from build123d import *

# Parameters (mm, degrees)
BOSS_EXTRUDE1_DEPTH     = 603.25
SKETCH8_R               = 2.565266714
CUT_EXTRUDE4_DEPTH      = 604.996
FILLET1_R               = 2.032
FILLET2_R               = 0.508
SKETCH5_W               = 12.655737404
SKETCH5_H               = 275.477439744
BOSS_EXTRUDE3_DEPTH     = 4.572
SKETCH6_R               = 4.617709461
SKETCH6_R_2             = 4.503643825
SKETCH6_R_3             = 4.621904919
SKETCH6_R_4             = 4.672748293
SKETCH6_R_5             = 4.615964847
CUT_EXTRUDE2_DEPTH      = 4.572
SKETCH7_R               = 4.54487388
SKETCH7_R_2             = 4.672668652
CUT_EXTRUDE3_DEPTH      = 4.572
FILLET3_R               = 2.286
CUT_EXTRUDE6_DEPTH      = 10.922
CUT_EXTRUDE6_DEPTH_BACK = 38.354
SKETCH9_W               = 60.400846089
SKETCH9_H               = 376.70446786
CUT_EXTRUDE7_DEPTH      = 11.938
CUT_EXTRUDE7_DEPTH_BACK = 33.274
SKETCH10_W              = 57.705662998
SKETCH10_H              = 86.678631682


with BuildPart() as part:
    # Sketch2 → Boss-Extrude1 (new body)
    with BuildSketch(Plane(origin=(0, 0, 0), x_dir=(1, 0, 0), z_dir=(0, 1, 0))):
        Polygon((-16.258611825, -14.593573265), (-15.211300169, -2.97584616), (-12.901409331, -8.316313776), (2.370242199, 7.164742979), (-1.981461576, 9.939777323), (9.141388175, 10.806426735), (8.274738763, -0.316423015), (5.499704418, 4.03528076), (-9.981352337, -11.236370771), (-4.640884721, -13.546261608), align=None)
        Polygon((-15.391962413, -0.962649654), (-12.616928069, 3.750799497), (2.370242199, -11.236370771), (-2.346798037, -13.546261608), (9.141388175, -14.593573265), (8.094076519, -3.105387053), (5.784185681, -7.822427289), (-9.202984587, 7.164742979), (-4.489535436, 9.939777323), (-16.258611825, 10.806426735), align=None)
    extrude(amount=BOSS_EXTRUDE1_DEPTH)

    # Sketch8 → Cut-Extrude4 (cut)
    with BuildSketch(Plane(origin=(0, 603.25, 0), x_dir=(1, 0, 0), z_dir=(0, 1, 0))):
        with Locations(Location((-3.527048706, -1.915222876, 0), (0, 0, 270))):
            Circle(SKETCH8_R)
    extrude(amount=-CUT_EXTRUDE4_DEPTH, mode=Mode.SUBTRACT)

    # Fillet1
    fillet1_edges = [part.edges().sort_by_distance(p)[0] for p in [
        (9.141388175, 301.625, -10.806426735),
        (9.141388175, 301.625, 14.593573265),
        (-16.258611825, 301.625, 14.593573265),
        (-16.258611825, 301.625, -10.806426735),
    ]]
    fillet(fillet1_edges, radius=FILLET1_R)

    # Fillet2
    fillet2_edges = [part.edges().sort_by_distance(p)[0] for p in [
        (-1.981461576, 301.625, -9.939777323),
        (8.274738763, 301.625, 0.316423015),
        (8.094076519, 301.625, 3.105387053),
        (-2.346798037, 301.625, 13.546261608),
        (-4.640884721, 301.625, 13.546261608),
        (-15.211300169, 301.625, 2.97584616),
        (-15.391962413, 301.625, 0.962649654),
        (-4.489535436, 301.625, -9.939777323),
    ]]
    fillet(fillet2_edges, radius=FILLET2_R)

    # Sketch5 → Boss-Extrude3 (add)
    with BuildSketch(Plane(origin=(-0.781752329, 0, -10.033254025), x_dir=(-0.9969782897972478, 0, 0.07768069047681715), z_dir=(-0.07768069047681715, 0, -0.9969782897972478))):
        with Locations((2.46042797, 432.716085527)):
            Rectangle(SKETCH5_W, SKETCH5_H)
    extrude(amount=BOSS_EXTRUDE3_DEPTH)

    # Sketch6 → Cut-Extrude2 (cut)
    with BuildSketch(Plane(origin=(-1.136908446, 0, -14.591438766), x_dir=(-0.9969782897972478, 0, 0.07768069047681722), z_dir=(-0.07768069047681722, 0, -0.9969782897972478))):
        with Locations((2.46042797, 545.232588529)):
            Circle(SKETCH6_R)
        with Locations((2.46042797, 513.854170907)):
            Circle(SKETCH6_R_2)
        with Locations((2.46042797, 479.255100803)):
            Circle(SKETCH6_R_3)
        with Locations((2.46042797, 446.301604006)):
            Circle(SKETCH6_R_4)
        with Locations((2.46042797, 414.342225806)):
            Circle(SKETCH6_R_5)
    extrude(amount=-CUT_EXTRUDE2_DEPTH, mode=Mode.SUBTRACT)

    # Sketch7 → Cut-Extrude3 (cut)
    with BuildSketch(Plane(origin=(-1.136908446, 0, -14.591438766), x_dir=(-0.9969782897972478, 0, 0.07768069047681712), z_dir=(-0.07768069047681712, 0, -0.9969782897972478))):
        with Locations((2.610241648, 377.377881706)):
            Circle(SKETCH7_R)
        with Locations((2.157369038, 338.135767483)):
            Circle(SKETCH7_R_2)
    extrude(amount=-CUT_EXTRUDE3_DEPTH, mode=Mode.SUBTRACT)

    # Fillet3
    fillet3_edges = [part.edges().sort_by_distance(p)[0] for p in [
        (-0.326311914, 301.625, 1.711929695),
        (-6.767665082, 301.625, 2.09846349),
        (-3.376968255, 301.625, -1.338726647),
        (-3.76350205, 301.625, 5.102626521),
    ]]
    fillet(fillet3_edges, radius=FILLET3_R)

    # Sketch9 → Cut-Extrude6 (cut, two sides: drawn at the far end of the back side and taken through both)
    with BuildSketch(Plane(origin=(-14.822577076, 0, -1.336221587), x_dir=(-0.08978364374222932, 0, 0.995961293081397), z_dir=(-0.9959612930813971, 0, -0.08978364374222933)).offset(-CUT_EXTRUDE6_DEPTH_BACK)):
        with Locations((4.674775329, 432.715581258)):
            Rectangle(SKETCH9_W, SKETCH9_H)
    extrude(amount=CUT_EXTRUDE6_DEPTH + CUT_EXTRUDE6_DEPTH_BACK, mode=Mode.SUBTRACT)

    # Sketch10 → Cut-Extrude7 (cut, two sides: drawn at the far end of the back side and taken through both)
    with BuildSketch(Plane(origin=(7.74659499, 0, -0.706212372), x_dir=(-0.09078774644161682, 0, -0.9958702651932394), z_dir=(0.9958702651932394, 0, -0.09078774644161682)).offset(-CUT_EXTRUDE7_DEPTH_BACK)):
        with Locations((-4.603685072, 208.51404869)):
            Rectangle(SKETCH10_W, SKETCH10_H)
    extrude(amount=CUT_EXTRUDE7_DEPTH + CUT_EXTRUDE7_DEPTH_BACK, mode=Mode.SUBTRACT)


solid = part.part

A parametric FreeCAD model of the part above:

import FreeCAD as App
import Part
import Sketcher
from FreeCAD import Vector
Q = App.Units.Quantity


def edges_at(feature, points):
    """Names of the edges that pass closest to the given points."""
    edges = feature.Shape.Edges
    near = lambda p: min(range(len(edges)), key=lambda i: edges[i].distToShape(Part.Vertex(*p))[0])
    return sorted({f"Edge{near(p) + 1}" for p in points})

doc = App.newDocument("Part")
params = doc.addObject("Spreadsheet::Sheet", "Params")
for row, (alias, value) in enumerate([
    ("pad1_length", "23.75 in"),
    ("pocket1_length", "604.996 mm"),
    ("fillet_radius", "0.08 in"),
    ("fillet2_radius", "0.02 in"),
    ("pad2_length", "0.18 in"),
    ("pocket2_length", "0.18 in"),
    ("pocket3_length", "0.18 in"),
    ("fillet3_radius", "0.09 in"),
], start=1):
    params.set(f"A{row}", alias)
    params.set(f"B{row}", "=" + value)
    params.setAlias(f"B{row}", alias)

body = doc.addObject("PartDesign::Body", "Body")

# Sketch on XZ plane
sketch1 = body.newObject("Sketcher::SketchObject", "Sketch")
sketch1.AttachmentSupport = (doc.getObject("XZ_Plane"), [""])
sketch1.MapMode = "FlatFace"
sketch1.addGeometry([
    Part.LineSegment(Vector(-16.258612, 14.593573, 0), Vector(-4.640885, 13.546262, 0)),  # 0
    Part.LineSegment(Vector(-4.640885, 13.546262, 0), Vector(-9.981352, 11.236371, 0)),  # 1
    Part.LineSegment(Vector(-9.981352, 11.236371, 0), Vector(-3.763502, 5.102627, 0)),  # 2
    Part.LineSegment(Vector(-3.763502, 5.102627, 0), Vector(2.370242, 11.236371, 0)),  # 3
    Part.LineSegment(Vector(2.370242, 11.236371, 0), Vector(-2.346798, 13.546262, 0)),  # 4
    Part.LineSegment(Vector(-2.346798, 13.546262, 0), Vector(9.141388, 14.593573, 0)),  # 5
    Part.LineSegment(Vector(9.141388, 14.593573, 0), Vector(8.094077, 3.105387, 0)),  # 6
    Part.LineSegment(Vector(8.094077, 3.105387, 0), Vector(5.784186, 7.822427, 0)),  # 7
    Part.LineSegment(Vector(5.784186, 7.822427, 0), Vector(-0.326312, 1.71193, 0)),  # 8
    Part.LineSegment(Vector(-0.326312, 1.71193, 0), Vector(5.499704, -4.035281, 0)),  # 9
    Part.LineSegment(Vector(5.499704, -4.035281, 0), Vector(8.274739, 0.316423, 0)),  # 10
    Part.LineSegment(Vector(8.274739, 0.316423, 0), Vector(9.141388, -10.806427, 0)),  # 11
    Part.LineSegment(Vector(9.141388, -10.806427, 0), Vector(-1.981462, -9.939777, 0)),  # 12
    Part.LineSegment(Vector(-1.981462, -9.939777, 0), Vector(2.370242, -7.164743, 0)),  # 13
    Part.LineSegment(Vector(2.370242, -7.164743, 0), Vector(-3.376968, -1.338727, 0)),  # 14
    Part.LineSegment(Vector(-3.376968, -1.338727, 0), Vector(-9.202985, -7.164743, 0)),  # 15
    Part.LineSegment(Vector(-9.202985, -7.164743, 0), Vector(-4.489535, -9.939777, 0)),  # 16
    Part.LineSegment(Vector(-4.489535, -9.939777, 0), Vector(-16.258612, -10.806427, 0)),  # 17
    Part.LineSegment(Vector(-16.258612, -10.806427, 0), Vector(-15.391962, 0.96265, 0)),  # 18
    Part.LineSegment(Vector(-15.391962, 0.96265, 0), Vector(-12.616928, -3.750799, 0)),  # 19
    Part.LineSegment(Vector(-12.616928, -3.750799, 0), Vector(-6.767665, 2.098463, 0)),  # 20
    Part.LineSegment(Vector(-6.767665, 2.098463, 0), Vector(-12.901409, 8.316314, 0)),  # 21
    Part.LineSegment(Vector(-12.901409, 8.316314, 0), Vector(-15.2113, 2.975846, 0)),  # 22
    Part.LineSegment(Vector(-15.2113, 2.975846, 0), Vector(-16.258612, 14.593573, 0)),  # 23
], False)
sketch1.addConstraint([
    Sketcher.Constraint("Coincident", 0, 2, 1, 1),
    Sketcher.Constraint("Coincident", 1, 2, 2, 1),
    Sketcher.Constraint("Coincident", 2, 2, 3, 1),
    Sketcher.Constraint("Coincident", 3, 2, 4, 1),
    Sketcher.Constraint("Coincident", 4, 2, 5, 1),
    Sketcher.Constraint("Coincident", 5, 2, 6, 1),
    Sketcher.Constraint("Coincident", 6, 2, 7, 1),
    Sketcher.Constraint("Coincident", 7, 2, 8, 1),
    Sketcher.Constraint("Coincident", 8, 2, 9, 1),
    Sketcher.Constraint("Coincident", 9, 2, 10, 1),
    Sketcher.Constraint("Coincident", 10, 2, 11, 1),
    Sketcher.Constraint("Coincident", 11, 2, 12, 1),
    Sketcher.Constraint("Coincident", 12, 2, 13, 1),
    Sketcher.Constraint("Coincident", 13, 2, 14, 1),
    Sketcher.Constraint("Coincident", 14, 2, 15, 1),
    Sketcher.Constraint("Coincident", 15, 2, 16, 1),
    Sketcher.Constraint("Coincident", 16, 2, 17, 1),
    Sketcher.Constraint("Coincident", 17, 2, 18, 1),
    Sketcher.Constraint("Coincident", 18, 2, 19, 1),
    Sketcher.Constraint("Coincident", 19, 2, 20, 1),
    Sketcher.Constraint("Coincident", 20, 2, 21, 1),
    Sketcher.Constraint("Coincident", 21, 2, 22, 1),
    Sketcher.Constraint("Coincident", 22, 2, 23, 1),
    Sketcher.Constraint("Coincident", 23, 2, 0, 1),
    Sketcher.Constraint("DistanceX", 9, 2, 7, 2, Q("0.0112 in")),
    Sketcher.Constraint("Distance", 2, Q("8.734099 mm")),
    Sketcher.Constraint("Distance", 21, Q("8.734099 mm")),
    Sketcher.Constraint("DistanceX", 4, 2, -1, 1, Q("2.346798 mm")),
    Sketcher.Constraint("DistanceY", 19, 2, -1, 1, Q("3.750799 mm")),
    Sketcher.Constraint("DistanceX", 22, 2, -1, 1, Q("15.2113 mm")),
    Sketcher.Constraint("DistanceY", 2, 2, 7, 2, Q("2.719801 mm")),
    Sketcher.Constraint("DistanceX", 8, 2, 11, 2, Q("9.4677 mm")),
    Sketcher.Constraint("DistanceX", 12, 2, 10, 2, Q("10.2562 mm")),
    Sketcher.Constraint("DistanceY", 12, 2, 10, 2, Q("10.2562 mm")),
    Sketcher.Constraint("DistanceY", 17, 2, 14, 2, Q("9.4677 mm")),
    Sketcher.Constraint("Distance", 8, Q("8.641549 mm")),
    Sketcher.Constraint("Distance", 11, Q("11.156562 mm")),
    Sketcher.Constraint("Distance", 12, Q("11.156562 mm")),
    Sketcher.Constraint("Distance", 15, Q("8.239231 mm")),
    Sketcher.Constraint("Distance", 16, Q("5.469682 mm")),
    Sketcher.Constraint("Distance", 19, Q("5.469682 mm")),
    Sketcher.Constraint("DistanceY", -1, 1, 0, 2, Q("13.546262 mm")),
    Sketcher.Constraint("DistanceY", -1, 1, 1, 2, Q("11.236371 mm")),
    Sketcher.Constraint("DistanceY", -1, 1, 3, 2, Q("11.236371 mm")),
    Sketcher.Constraint("DistanceY", -1, 1, 4, 2, Q("13.546262 mm")),
    Sketcher.Constraint("DistanceX", -1, 1, 5, 2, Q("9.141388 mm")),
    Sketcher.Constraint("DistanceX", 8, 2, -1, 1, Q("0.326312 mm")),
    Sketcher.Constraint("DistanceY", -1, 1, 8, 2, Q("1.71193 mm")),
    Sketcher.Constraint("DistanceY", 9, 2, -1, 1, Q("4.035281 mm")),
    Sketcher.Constraint("DistanceX", 14, 2, -1, 1, Q("3.376968 mm")),
    Sketcher.Constraint("DistanceX", 17, 2, -1, 1, Q("16.258612 mm")),
    Sketcher.Constraint("DistanceY", -1, 1, 18, 2, Q("0.96265 mm")),
    Sketcher.Constraint("DistanceX", 19, 2, -1, 1, Q("12.616928 mm")),
    Sketcher.Constraint("DistanceX", 21, 2, -1, 1, Q("12.901409 mm")),
    Sketcher.Constraint("DistanceX", 23, 2, -1, 1, Q("16.258612 mm")),
    Sketcher.Constraint("DistanceX", 1, 2, 2, 2, Q("6.21785 mm")),
    Sketcher.Constraint("DistanceX", 4, 2, 3, 2, Q("4.71704 mm")),
    Sketcher.Constraint("DistanceY", 4, 2, 5, 2, Q("1.047312 mm")),
    Sketcher.Constraint("DistanceX", 2, 2, 5, 2, Q("12.90489 mm")),
    Sketcher.Constraint("DistanceX", 6, 2, 5, 2, Q("1.047312 mm")),
    Sketcher.Constraint("DistanceY", 6, 2, 2, 2, Q("1.997239 mm")),
    Sketcher.Constraint("DistanceX", 0, 2, 6, 2, Q("12.734961 mm")),
    Sketcher.Constraint("DistanceX", 14, 2, 13, 2, Q("5.74721 mm")),
    Sketcher.Constraint("DistanceY", 12, 2, 14, 2, Q("8.601051 mm")),
    Sketcher.Constraint("DistanceY", 15, 2, 2, 2, Q("12.26737 mm")),
    Sketcher.Constraint("DistanceX", 15, 2, 16, 2, Q("4.713449 mm")),
    Sketcher.Constraint("DistanceY", 16, 2, 14, 2, Q("8.601051 mm")),
    Sketcher.Constraint("DistanceY", 14, 2, 20, 2, Q("3.43719 mm")),
    Sketcher.Constraint("DistanceY", 20, 2, 21, 2, Q("6.21785 mm")),
    Sketcher.Constraint("DistanceY", 21, 2, 23, 2, Q("6.277259 mm")),
    Sketcher.Constraint("Distance", 13, Q("5.161215 mm")),
    Sketcher.Constraint("Distance", 22, Q("5.818607 mm")),
])
pad1 = body.newObject("PartDesign::Pad", "Pad")
pad1.Profile = sketch1
pad1.setExpression("Length", "Params.pad1_length")
pad1.Reversed = True

# Sketch on XZ plane
sketch2 = body.newObject("Sketcher::SketchObject", "Sketch001")
sketch2.AttachmentSupport = (doc.getObject("XZ_Plane"), [""])
sketch2.MapMode = "FlatFace"
sketch2.AttachmentOffset = App.Placement(Vector(0, 0, -23.75 * 25.4), App.Rotation())
sketch2.addGeometry(Part.Circle(Vector(-3.5, 1.9, 0), Vector(0, 0, 1), 2.6), False)
sketch2.addConstraint([
    Sketcher.Constraint("Diameter", 0, Q("5.130533 mm")),
    Sketcher.Constraint("DistanceX", 0, 3, -1, 1, Q("3.527049 mm")),
    Sketcher.Constraint("DistanceY", -1, 1, 0, 3, Q("1.915223 mm")),
])
pocket1 = body.newObject("PartDesign::Pocket", "Pocket")
pocket1.Profile = sketch2
pocket1.setExpression("Length", "Params.pocket1_length")
pocket1.Reversed = True
doc.recompute()

fillet = body.newObject("PartDesign::Fillet", "Fillet")
fillet.Base = (pocket1, edges_at(pocket1, [
    (9.141, 301.625, -10.806),
    (9.141, 301.625, 14.594),
    (-16.259, 301.625, 14.594),
    (-16.259, 301.625, -10.806),
]))
fillet.setExpression("Radius", "Params.fillet_radius")
doc.recompute()

fillet2 = body.newObject("PartDesign::Fillet", "Fillet001")
fillet2.Base = (fillet, edges_at(fillet, [
    (-1.981, 301.625, -9.94),
    (8.275, 301.625, 0.316),
    (8.094, 301.625, 3.105),
    (-2.347, 301.625, 13.546),
    (-4.641, 301.625, 13.546),
    (-15.211, 301.625, 2.976),
    (-15.392, 301.625, 0.963),
    (-4.49, 301.625, -9.94),
]))
fillet2.setExpression("Radius", "Params.fillet2_radius")

# Sketch on an angled plane
sketch3 = body.newObject("Sketcher::SketchObject", "Sketch002")
sketch3.Placement = App.Placement(Vector(-0.781752, 0, -10.033254), App.Rotation(Vector(-0.99697829, 0, 0.07768069), Vector(0, 1, 0), Vector(-0.07768069, 0, -0.99697829), "ZXY"))
sketch3.addGeometry([
    Part.LineSegment(Vector(-4, 570, 0), Vector(-4, 295, 0)),
    Part.LineSegment(Vector(-4, 295, 0), Vector(9, 295, 0)),
    Part.LineSegment(Vector(9, 295, 0), Vector(9, 570, 0)),
    Part.LineSegment(Vector(9, 570, 0), Vector(-4, 570, 0)),
], False)
sketch3.addConstraint([
    Sketcher.Constraint("Coincident", 0, 2, 1, 1),
    Sketcher.Constraint("Coincident", 1, 2, 2, 1),
    Sketcher.Constraint("Coincident", 2, 2, 3, 1),
    Sketcher.Constraint("Coincident", 3, 2, 0, 1),
    Sketcher.Constraint("Vertical", 0),
    Sketcher.Constraint("Horizontal", 1),
    Sketcher.Constraint("Vertical", 2),
    Sketcher.Constraint("Horizontal", 3),
    Sketcher.Constraint("DistanceY", 0, 2, 0, 1, Q("275.47744 mm")),
    Sketcher.Constraint("DistanceX", 1, 1, 1, 2, Q("12.655737 mm")),
    Sketcher.Constraint("DistanceX", 0, 2, -1, 1, Q("3.867441 mm")),
    Sketcher.Constraint("DistanceY", -1, 1, 0, 2, Q("294.977366 mm")),
])
pad2 = body.newObject("PartDesign::Pad", "Pad001")
pad2.Profile = sketch3
pad2.setExpression("Length", "Params.pad2_length")

# Sketch on an angled plane
sketch4 = body.newObject("Sketcher::SketchObject", "Sketch003")
sketch4.Placement = App.Placement(Vector(-1.136908, 0, -14.591439), App.Rotation(Vector(-0.99697829, 0, 0.07768069), Vector(0, 1, 0), Vector(-0.07768069, 0, -0.99697829), "ZXY"))
sketch4.addGeometry([
    Part.Circle(Vector(2.5, 545.2, 0), Vector(0, 0, 1), 4.6),  # 0
    Part.Circle(Vector(2.5, 513.9, 0), Vector(0, 0, 1), 4.5),  # 1
    Part.Circle(Vector(2.5, 479.3, 0), Vector(0, 0, 1), 4.6),  # 2
    Part.Circle(Vector(2.5, 446.3, 0), Vector(0, 0, 1), 4.7),  # 3
    Part.Circle(Vector(2.5, 414.3, 0), Vector(0, 0, 1), 4.6),  # 4
], False)
sketch4.addConstraint([
    Sketcher.Constraint("Vertical", 0, 3, 1, 3),
    Sketcher.Constraint("Vertical", 1, 3, 2, 3),
    Sketcher.Constraint("Vertical", 2, 3, 3, 3),
    Sketcher.Constraint("Vertical", 3, 3, 4, 3),
    Sketcher.Constraint("Diameter", 0, Q("9.235419 mm")),
    Sketcher.Constraint("Diameter", 2, Q("9.24381 mm")),
    Sketcher.Constraint("Diameter", 4, Q("9.23193 mm")),
    Sketcher.Constraint("Diameter", 1, Q("9.007288 mm")),
    Sketcher.Constraint("Diameter", 3, Q("9.345497 mm")),
    Sketcher.Constraint("DistanceY", -1, 1, 2, 3, Q("479.255101 mm")),
    Sketcher.Constraint("DistanceY", -1, 1, 0, 3, Q("545.232589 mm")),
    Sketcher.Constraint("DistanceY", -1, 1, 1, 3, Q("513.854171 mm")),
    Sketcher.Constraint("DistanceY", 4, 3, 3, 3, Q("31.959378 mm")),
    Sketcher.Constraint("DistanceX", -1, 1, 0, 3, Q("2.460428 mm")),
    Sketcher.Constraint("DistanceY", -1, 1, 3, 3, Q("446.301604 mm")),
])
pocket2 = body.newObject("PartDesign::Pocket", "Pocket001")
pocket2.Profile = sketch4
pocket2.setExpression("Length", "Params.pocket2_length")

# Sketch on an angled plane
sketch5 = body.newObject("Sketcher::SketchObject", "Sketch004")
sketch5.Placement = App.Placement(Vector(-1.136908, 0, -14.591439), App.Rotation(Vector(-0.99697829, 0, 0.07768069), Vector(0, 1, 0), Vector(-0.07768069, 0, -0.99697829), "ZXY"))
sketch5.addGeometry([
    Part.Circle(Vector(2.6, 377.4, 0), Vector(0, 0, 1), 4.5),
    Part.Circle(Vector(2.2, 338.1, 0), Vector(0, 0, 1), 4.7),
], False)
sketch5.addConstraint([
    Sketcher.Constraint("Diameter", 0, Q("9.089748 mm")),
    Sketcher.Constraint("Diameter", 1, Q("9.345337 mm")),
    Sketcher.Constraint("DistanceX", -1, 1, 0, 3, Q("2.610242 mm")),
    Sketcher.Constraint("DistanceY", -1, 1, 0, 3, Q("377.377882 mm")),
    Sketcher.Constraint("DistanceX", -1, 1, 1, 3, Q("2.157369 mm")),
    Sketcher.Constraint("DistanceY", -1, 1, 1, 3, Q("338.135768 mm")),
])
pocket3 = body.newObject("PartDesign::Pocket", "Pocket002")
pocket3.Profile = sketch5
pocket3.setExpression("Length", "Params.pocket3_length")
doc.recompute()

fillet3 = body.newObject("PartDesign::Fillet", "Fillet002")
fillet3.Base = (pocket3, edges_at(pocket3, [
    (-0.326, 301.625, 1.712),
    (-6.768, 301.625, 2.098),
    (-3.377, 301.625, -1.339),
    (-3.764, 301.625, 5.103),
]))
fillet3.setExpression("Radius", "Params.fillet3_radius")

# Sketch on an angled plane
sketch6 = body.newObject("Sketcher::SketchObject", "Sketch005")
sketch6.Placement = App.Placement(Vector(-14.822577, 0, -1.336222), App.Rotation(Vector(-0.089783644, 0, 0.995961293), Vector(0, 1, 0), Vector(-0.995961293, 0, -0.089783644), "ZXY"))
sketch6.addGeometry([
    Part.LineSegment(Vector(-26, 621, 0), Vector(-26, 244, 0)),
    Part.LineSegment(Vector(-26, 244, 0), Vector(35, 244, 0)),
    Part.LineSegment(Vector(35, 244, 0), Vector(35, 621, 0)),
    Part.LineSegment(Vector(35, 621, 0), Vector(-26, 621, 0)),
], False)
sketch6.addConstraint([
    Sketcher.Constraint("Coincident", 0, 2, 1, 1),
    Sketcher.Constraint("Coincident", 1, 2, 2, 1),
    Sketcher.Constraint("Coincident", 2, 2, 3, 1),
    Sketcher.Constraint("Coincident", 3, 2, 0, 1),
    Sketcher.Constraint("Vertical", 0),
    Sketcher.Constraint("Horizontal", 1),
    Sketcher.Constraint("Vertical", 2),
    Sketcher.Constraint("Horizontal", 3),
    Sketcher.Constraint("DistanceX", -1, 1, 1, 2, Q("34.875198 mm")),
    Sketcher.Constraint("DistanceX", 1, 1, 1, 2, Q("60.400846 mm")),
    Sketcher.Constraint("DistanceY", 0, 2, 0, 1, Q("376.704468 mm")),
    Sketcher.Constraint("DistanceY", -1, 1, 0, 2, Q("244.363347 mm")),
])
pocket4 = body.newObject("PartDesign::Pocket", "Pocket003")
pocket4.Profile = sketch6
pocket4.Type = "ThroughAll"
pocket4.Midplane = True

# Sketch on an angled plane
sketch7 = body.newObject("Sketcher::SketchObject", "Sketch006")
sketch7.Placement = App.Placement(Vector(7.746595, 0, -0.706212), App.Rotation(Vector(-0.090787746, 0, -0.995870265), Vector(0, 1, 0), Vector(0.995870265, 0, -0.090787746), "ZXY"))
sketch7.addGeometry([
    Part.LineSegment(Vector(-33, 252, 0), Vector(-33, 165, 0)),
    Part.LineSegment(Vector(-33, 165, 0), Vector(24, 165, 0)),
    Part.LineSegment(Vector(24, 165, 0), Vector(24, 252, 0)),
    Part.LineSegment(Vector(24, 252, 0), Vector(-33, 252, 0)),
], False)
sketch7.addConstraint([
    Sketcher.Constraint("Coincident", 0, 2, 1, 1),
    Sketcher.Constraint("Coincident", 1, 2, 2, 1),
    Sketcher.Constraint("Coincident", 2, 2, 3, 1),
    Sketcher.Constraint("Coincident", 3, 2, 0, 1),
    Sketcher.Constraint("Vertical", 0),
    Sketcher.Constraint("Horizontal", 1),
    Sketcher.Constraint("Vertical", 2),
    Sketcher.Constraint("Horizontal", 3),
    Sketcher.Constraint("DistanceY", 0, 2, 0, 1, Q("86.678632 mm")),
    Sketcher.Constraint("DistanceX", 1, 1, 1, 2, Q("57.705663 mm")),
    Sketcher.Constraint("DistanceX", 0, 2, -1, 1, Q("33.456517 mm")),
    Sketcher.Constraint("DistanceY", -1, 1, 0, 2, Q("165.174733 mm")),
])
pocket5 = body.newObject("PartDesign::Pocket", "Pocket004")
pocket5.Profile = sketch7
pocket5.Type = "ThroughAll"
pocket5.Midplane = True

doc.recompute()
